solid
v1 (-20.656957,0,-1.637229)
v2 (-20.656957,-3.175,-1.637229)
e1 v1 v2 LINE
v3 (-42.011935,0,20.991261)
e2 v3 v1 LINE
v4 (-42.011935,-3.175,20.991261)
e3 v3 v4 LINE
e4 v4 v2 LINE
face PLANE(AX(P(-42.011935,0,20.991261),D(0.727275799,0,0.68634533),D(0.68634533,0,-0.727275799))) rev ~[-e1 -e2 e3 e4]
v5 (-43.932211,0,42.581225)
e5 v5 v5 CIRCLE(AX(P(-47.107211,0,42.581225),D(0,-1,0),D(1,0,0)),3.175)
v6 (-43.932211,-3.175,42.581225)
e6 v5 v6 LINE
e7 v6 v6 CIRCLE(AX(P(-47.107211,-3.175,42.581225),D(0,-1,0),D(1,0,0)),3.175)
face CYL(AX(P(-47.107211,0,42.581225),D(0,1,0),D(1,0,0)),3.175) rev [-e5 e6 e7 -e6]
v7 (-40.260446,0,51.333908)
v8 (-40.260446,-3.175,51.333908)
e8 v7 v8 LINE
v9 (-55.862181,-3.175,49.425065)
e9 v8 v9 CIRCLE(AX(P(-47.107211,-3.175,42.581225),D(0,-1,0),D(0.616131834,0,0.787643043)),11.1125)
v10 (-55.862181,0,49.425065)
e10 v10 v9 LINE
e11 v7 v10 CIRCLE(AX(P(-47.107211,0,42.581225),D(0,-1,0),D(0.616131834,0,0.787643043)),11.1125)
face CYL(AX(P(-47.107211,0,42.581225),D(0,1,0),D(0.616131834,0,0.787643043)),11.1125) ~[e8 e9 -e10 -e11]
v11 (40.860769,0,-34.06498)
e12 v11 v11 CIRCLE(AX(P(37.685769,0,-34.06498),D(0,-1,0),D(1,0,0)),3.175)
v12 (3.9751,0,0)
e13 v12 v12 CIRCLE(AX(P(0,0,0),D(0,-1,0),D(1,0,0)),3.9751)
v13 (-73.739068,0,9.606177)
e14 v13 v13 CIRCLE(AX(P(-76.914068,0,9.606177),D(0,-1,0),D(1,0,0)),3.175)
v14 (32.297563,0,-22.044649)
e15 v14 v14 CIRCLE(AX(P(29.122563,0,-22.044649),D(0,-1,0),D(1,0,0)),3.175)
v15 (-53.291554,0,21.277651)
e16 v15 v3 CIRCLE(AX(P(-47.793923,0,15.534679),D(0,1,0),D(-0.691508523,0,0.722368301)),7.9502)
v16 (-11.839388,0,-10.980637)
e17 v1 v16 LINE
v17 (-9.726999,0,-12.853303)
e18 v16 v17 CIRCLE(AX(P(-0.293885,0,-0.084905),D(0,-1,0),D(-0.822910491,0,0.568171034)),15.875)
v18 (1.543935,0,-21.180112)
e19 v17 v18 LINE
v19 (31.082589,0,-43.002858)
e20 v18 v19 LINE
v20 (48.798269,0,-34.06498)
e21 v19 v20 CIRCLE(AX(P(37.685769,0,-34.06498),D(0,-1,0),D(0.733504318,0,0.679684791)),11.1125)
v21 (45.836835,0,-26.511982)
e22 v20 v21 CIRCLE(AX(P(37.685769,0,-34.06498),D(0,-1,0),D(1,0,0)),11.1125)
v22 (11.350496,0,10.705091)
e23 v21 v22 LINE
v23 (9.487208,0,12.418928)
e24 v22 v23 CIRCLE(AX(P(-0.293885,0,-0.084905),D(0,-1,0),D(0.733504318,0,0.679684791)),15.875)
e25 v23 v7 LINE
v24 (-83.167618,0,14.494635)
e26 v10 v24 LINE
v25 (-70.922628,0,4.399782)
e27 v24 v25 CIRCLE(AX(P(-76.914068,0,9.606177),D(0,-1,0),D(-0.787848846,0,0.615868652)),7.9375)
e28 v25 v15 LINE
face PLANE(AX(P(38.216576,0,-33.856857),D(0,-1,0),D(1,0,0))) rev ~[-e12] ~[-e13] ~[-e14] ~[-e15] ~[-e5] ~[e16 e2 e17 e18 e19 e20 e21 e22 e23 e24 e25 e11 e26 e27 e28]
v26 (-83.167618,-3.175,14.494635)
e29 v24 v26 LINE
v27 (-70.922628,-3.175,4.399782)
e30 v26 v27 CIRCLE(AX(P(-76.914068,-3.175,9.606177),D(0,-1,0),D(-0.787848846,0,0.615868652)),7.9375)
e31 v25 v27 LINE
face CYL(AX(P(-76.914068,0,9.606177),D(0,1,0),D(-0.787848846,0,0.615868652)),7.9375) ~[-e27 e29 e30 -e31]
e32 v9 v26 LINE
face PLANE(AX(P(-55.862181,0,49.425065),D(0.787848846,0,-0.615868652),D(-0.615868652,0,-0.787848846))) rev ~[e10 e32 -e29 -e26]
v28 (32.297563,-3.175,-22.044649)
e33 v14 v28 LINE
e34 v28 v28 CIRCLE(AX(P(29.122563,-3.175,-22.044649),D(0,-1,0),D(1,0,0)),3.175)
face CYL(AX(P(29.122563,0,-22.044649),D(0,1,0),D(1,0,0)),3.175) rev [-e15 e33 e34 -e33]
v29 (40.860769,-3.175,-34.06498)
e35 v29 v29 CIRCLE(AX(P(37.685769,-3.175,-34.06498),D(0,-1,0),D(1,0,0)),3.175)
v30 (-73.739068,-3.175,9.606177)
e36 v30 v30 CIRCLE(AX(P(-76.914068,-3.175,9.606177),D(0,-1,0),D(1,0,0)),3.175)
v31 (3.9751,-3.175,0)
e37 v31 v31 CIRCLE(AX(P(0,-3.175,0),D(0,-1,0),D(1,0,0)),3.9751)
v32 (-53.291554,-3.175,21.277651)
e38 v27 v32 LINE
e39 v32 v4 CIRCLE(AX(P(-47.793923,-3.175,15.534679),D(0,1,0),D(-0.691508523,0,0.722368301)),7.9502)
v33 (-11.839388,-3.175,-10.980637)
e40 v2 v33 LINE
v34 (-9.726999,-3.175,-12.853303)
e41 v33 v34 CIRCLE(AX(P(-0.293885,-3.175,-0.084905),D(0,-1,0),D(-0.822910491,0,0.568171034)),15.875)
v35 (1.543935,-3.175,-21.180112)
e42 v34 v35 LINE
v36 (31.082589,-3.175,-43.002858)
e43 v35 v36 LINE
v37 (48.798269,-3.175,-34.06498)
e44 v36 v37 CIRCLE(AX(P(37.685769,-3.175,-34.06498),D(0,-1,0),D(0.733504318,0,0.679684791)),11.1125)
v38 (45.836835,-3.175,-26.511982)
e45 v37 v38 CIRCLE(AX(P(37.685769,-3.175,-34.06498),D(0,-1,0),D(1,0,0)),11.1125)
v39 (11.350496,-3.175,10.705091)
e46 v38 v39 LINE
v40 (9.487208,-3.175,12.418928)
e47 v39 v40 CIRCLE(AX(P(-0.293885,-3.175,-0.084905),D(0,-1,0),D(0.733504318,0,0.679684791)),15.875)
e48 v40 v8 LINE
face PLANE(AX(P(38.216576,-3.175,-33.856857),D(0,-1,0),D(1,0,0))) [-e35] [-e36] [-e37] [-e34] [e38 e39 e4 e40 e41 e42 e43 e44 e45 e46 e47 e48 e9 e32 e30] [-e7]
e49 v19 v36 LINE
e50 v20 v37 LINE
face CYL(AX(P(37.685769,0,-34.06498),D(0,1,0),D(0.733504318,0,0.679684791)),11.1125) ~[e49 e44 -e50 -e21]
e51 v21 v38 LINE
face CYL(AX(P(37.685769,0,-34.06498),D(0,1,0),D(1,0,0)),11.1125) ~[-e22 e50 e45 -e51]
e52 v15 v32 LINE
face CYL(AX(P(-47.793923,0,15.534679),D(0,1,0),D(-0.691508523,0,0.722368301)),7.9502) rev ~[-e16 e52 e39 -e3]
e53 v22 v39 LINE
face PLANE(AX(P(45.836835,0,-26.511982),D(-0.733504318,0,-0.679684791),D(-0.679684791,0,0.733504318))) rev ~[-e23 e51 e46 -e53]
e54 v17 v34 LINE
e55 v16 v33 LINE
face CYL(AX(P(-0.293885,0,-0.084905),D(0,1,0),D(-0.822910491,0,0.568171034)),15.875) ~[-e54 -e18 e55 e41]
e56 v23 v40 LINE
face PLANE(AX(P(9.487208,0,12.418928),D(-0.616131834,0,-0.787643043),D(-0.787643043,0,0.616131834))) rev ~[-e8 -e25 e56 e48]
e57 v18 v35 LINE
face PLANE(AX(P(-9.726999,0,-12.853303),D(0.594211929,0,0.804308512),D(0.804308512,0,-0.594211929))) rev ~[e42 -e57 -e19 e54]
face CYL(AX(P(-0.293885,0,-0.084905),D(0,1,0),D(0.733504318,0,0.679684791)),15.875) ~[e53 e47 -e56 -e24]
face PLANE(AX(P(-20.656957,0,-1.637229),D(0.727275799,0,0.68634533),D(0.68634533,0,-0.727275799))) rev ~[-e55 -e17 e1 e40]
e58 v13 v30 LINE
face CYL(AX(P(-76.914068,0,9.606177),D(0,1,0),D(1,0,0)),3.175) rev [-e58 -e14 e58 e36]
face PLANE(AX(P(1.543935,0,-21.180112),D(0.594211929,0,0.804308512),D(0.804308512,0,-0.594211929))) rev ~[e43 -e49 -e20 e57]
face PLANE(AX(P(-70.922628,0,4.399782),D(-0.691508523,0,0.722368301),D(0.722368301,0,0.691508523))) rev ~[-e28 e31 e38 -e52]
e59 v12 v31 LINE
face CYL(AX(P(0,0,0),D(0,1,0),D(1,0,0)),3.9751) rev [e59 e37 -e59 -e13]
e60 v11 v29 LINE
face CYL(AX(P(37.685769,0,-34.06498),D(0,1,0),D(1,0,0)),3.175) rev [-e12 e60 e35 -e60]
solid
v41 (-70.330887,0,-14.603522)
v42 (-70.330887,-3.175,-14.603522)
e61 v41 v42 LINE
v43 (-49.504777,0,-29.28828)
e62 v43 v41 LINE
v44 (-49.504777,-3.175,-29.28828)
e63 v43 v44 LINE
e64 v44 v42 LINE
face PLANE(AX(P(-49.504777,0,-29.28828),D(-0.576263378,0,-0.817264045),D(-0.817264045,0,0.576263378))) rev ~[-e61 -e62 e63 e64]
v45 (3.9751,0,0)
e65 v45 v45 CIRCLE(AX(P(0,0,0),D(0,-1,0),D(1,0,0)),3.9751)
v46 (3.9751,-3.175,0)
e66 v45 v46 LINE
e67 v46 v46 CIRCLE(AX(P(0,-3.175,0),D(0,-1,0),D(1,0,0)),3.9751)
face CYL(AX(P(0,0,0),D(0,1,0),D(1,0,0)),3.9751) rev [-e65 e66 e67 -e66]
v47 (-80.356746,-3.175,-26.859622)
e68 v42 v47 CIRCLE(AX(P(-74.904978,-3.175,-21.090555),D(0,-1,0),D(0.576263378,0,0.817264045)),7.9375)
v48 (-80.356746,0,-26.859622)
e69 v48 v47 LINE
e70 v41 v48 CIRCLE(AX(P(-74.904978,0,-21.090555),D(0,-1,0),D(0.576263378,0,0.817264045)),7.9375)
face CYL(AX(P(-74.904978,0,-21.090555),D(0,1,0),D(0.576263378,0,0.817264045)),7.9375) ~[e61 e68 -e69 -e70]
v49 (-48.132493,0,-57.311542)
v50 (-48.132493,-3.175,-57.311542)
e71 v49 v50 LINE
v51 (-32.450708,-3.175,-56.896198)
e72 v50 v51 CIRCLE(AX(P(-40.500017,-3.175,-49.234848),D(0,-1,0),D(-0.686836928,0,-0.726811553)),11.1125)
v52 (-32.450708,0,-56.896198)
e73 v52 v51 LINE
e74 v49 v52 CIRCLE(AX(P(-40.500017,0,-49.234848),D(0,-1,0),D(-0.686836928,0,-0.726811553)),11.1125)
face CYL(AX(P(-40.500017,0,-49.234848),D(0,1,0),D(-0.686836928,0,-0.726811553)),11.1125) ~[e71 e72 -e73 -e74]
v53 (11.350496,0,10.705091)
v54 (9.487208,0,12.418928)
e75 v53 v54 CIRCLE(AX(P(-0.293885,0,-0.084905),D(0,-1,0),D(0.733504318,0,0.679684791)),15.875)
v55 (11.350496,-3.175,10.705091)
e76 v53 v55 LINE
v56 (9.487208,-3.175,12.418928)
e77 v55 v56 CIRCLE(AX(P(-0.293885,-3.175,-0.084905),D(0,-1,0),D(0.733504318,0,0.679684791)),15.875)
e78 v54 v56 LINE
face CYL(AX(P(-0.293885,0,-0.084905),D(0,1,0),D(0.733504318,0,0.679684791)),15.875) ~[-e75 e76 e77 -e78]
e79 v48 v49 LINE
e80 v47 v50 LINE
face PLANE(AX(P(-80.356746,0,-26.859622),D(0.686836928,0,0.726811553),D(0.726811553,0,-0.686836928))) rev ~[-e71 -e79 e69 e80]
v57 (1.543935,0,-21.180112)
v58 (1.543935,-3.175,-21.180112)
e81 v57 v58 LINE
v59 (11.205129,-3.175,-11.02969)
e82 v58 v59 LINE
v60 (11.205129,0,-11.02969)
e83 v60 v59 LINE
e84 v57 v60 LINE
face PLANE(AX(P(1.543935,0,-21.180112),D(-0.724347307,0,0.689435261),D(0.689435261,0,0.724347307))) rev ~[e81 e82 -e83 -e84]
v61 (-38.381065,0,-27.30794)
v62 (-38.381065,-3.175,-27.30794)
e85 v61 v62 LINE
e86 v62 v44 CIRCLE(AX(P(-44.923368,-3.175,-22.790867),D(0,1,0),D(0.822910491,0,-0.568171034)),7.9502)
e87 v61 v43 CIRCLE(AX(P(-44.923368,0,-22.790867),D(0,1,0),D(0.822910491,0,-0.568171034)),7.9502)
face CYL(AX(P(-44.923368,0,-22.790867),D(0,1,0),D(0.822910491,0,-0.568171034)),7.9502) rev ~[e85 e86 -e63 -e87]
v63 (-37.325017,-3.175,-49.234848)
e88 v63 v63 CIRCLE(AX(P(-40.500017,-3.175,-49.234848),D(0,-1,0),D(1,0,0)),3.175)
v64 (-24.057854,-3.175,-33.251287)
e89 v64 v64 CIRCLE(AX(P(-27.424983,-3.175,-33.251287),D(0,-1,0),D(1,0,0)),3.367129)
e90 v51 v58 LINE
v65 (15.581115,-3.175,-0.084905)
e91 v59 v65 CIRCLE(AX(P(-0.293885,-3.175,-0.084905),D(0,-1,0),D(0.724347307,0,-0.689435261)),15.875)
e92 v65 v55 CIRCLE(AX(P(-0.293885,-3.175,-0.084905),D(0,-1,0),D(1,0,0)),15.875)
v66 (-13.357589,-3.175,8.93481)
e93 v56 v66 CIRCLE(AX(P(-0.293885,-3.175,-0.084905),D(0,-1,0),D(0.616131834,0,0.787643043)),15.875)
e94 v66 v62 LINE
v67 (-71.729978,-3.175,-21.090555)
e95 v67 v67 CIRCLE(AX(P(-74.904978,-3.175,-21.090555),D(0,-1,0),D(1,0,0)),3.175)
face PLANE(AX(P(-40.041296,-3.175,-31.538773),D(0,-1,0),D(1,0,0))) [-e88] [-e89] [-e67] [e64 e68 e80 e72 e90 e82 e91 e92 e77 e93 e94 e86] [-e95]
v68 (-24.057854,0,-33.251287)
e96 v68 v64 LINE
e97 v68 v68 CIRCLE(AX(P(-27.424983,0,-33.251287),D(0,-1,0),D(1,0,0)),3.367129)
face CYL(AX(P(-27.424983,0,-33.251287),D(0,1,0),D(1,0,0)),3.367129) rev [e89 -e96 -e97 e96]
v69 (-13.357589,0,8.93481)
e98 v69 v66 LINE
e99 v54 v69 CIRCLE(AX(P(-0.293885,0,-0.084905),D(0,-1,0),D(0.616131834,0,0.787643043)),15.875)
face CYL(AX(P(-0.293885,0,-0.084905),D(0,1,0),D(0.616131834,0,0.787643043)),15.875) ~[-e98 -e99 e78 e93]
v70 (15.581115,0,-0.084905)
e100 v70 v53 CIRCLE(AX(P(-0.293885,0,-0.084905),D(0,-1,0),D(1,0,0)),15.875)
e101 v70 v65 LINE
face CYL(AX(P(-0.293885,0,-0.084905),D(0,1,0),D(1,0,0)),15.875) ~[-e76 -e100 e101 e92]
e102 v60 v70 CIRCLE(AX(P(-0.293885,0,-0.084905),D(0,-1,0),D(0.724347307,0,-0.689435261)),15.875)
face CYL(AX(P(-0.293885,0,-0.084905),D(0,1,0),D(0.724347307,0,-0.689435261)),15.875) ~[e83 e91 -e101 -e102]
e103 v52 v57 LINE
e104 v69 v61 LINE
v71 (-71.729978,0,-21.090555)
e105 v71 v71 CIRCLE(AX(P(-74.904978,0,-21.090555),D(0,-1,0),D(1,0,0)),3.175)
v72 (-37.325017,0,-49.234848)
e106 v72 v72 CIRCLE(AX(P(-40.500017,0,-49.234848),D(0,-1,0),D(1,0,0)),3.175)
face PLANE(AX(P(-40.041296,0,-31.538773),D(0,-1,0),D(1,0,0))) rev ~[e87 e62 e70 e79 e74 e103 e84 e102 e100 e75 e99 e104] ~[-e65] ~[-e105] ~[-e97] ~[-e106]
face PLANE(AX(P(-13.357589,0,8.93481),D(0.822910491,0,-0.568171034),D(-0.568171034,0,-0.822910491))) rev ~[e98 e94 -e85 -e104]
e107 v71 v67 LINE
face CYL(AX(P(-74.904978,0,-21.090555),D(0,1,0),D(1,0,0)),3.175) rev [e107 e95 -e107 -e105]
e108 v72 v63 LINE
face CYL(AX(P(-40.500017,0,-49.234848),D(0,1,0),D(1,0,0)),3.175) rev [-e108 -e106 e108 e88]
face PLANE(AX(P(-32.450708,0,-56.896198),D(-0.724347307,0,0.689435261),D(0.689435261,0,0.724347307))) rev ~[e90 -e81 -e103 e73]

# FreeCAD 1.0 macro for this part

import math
import FreeCAD as App
import Part
import Sketcher
Q = App.Units.Quantity

doc = App.newDocument("Part")
body = doc.addObject("PartDesign::Body", "Body")

sketch1 = body.newObject("Sketcher::SketchObject", "Sketch")
sketch1.AttachmentSupport = (doc.getObject("XZ_Plane"), [""])
sketch1.MapMode = "FlatFace"
sketch1.addGeometry([
    Part.ArcOfCircle(Part.Circle(App.Vector(37.7, -34.1, 0), App.Vector(0, 0, 1), 11.1), math.radians(0), math.radians(43)),
    Part.LineSegment(App.Vector(45.8, -26.5, 0), App.Vector(11.4, 10.7, 0)),
    Part.ArcOfCircle(Part.Circle(App.Vector(-0.3, -0.1, 0), App.Vector(0, 0, 1), 15.9), math.radians(42.82), math.radians(51.97)),
    Part.LineSegment(App.Vector(9.5, 12.4, 0), App.Vector(-40.3, 51.3, 0)),
    Part.ArcOfCircle(Part.Circle(App.Vector(-47.1, 42.6, 0), App.Vector(0, 0, 1), 11.1), math.radians(52), math.radians(142)),
    Part.LineSegment(App.Vector(-55.9, 49.4, 0), App.Vector(-83.2, 14.5, 0)),
    Part.ArcOfCircle(Part.Circle(App.Vector(-76.9, 9.6, 0), App.Vector(0, 0, 1), 7.9), math.radians(142), math.radians(319)),
    Part.LineSegment(App.Vector(-70.9, 4.4, 0), App.Vector(-53.3, 21.3, 0)),
    Part.ArcOfCircle(Part.Circle(App.Vector(-47.8, 15.5, 0), App.Vector(0, 0, 1), 8), math.radians(43), math.radians(134)),
    Part.LineSegment(App.Vector(-42, 21, 0), App.Vector(-20.7, -1.6, 0)),
    Part.LineSegment(App.Vector(-20.7, -1.6, 0), App.Vector(-11.8, -11, 0)),
    Part.ArcOfCircle(Part.Circle(App.Vector(-0.3, -0.1, 0), App.Vector(0, 0, 1), 15.9), math.radians(-136.66), math.radians(-126.46)),
    Part.LineSegment(App.Vector(-9.7, -12.9, 0), App.Vector(1.5, -21.2, 0)),
    Part.LineSegment(App.Vector(1.5, -21.2, 0), App.Vector(31.1, -43, 0)),
    Part.ArcOfCircle(Part.Circle(App.Vector(37.7, -34.1, 0), App.Vector(0, 0, 1), 11.1), math.radians(-126), math.radians(0)),
    Part.Circle(App.Vector(37.7, -34.1, 0), App.Vector(0, 0, 1), 3.2),
    Part.Circle(App.Vector(29.1, -22, 0), App.Vector(0, 0, 1), 3.2),
    Part.Circle(App.Vector(0, 0, 0), App.Vector(0, 0, 1), 4),
    Part.Circle(App.Vector(-76.9, 9.6, 0), App.Vector(0, 0, 1), 3.2),
    Part.Circle(App.Vector(-47.1, 42.6, 0), App.Vector(0, 0, 1), 3.2),
], False)
sketch1.addConstraint([
    Sketcher.Constraint("Tangent", 0, 2, 1, 1),
    Sketcher.Constraint("Tangent", 1, 2, 2, 1),
    Sketcher.Constraint("Tangent", 2, 2, 3, 1),
    Sketcher.Constraint("Tangent", 3, 2, 4, 1),
    Sketcher.Constraint("Tangent", 4, 2, 5, 1),
    Sketcher.Constraint("Tangent", 5, 2, 6, 1),
    Sketcher.Constraint("Coincident", 6, 2, 7, 1),
    Sketcher.Constraint("Tangent", 7, 2, 8, 2),
    Sketcher.Constraint("Tangent", 8, 1, 9, 1),
    Sketcher.Constraint("Coincident", 9, 2, 10, 1),
    Sketcher.Constraint("Tangent", 10, 2, 11, 1),
    Sketcher.Constraint("Tangent", 11, 2, 12, 1),
    Sketcher.Constraint("Coincident", 12, 2, 13, 1),
    Sketcher.Constraint("Tangent", 13, 2, 14, 1),
    Sketcher.Constraint("Tangent", 14, 2, 0, 1),
    Sketcher.Constraint("Coincident", 17, 3, -1, 1),
    Sketcher.Constraint("Coincident", 11, 3, 2, 3),
    Sketcher.Constraint("Coincident", 15, 3, 0, 3),
    Sketcher.Constraint("Coincident", 18, 3, 6, 3),
    Sketcher.Constraint("Coincident", 19, 3, 4, 3),
    Sketcher.Constraint("Equal", 0, 4),
    Sketcher.Constraint("Equal", 2, 11),
    Sketcher.Constraint("Equal", 4, 14),
    Sketcher.Constraint("Equal", 15, 16),
    Sketcher.Constraint("Equal", 16, 18),
    Sketcher.Constraint("Equal", 18, 19),
    Sketcher.Constraint("Parallel", 9, 10),
    Sketcher.Constraint("Parallel", 12, 13),
    Sketcher.Constraint("Horizontal", 15, 3, 14, 2),
    Sketcher.Constraint("Diameter", 15, Q("0.25 in")),
    Sketcher.Constraint("Diameter", 17, Q("0.313 in")),
    Sketcher.Constraint("Radius", 0, Q("0.4375 in")),
    Sketcher.Constraint("Radius", 2, Q("0.625 in")),
    Sketcher.Constraint("Radius", 6, Q("0.3125 in")),
    Sketcher.Constraint("Radius", 8, Q("0.313 in")),
    Sketcher.Constraint("DistanceX", -1, 1, 0, 2, Q("1.8045998 in")),
    Sketcher.Constraint("Distance", 12, Q("14.013198 mm")),
    Sketcher.Constraint("DistanceX", 11, 2, -1, 1, Q("9.726999 mm")),
    Sketcher.Constraint("DistanceY", 6, 3, 8, 3, Q("5.928501 mm")),
    Sketcher.Constraint("Distance", 3, Q("63.160151 mm")),
    Sketcher.Constraint("Distance", 7, Q("24.407319 mm")),
    Sketcher.Constraint("Distance", 10, Q("12.847132 mm")),
    Sketcher.Constraint("DistanceX", -1, 1, 0, 3, Q("37.685769 mm")),
    Sketcher.Constraint("DistanceY", 0, 3, -1, 1, Q("34.06498 mm")),
    Sketcher.Constraint("DistanceX", 4, 3, -1, 1, Q("47.107211 mm")),
    Sketcher.Constraint("DistanceX", 6, 3, -1, 1, Q("76.914068 mm")),
    Sketcher.Constraint("DistanceY", -1, 1, 8, 3, Q("15.534679 mm")),
    Sketcher.Constraint("DistanceY", 16, 3, -1, 1, Q("22.044649 mm")),
    Sketcher.Constraint("DistanceY", -1, 1, 7, 2, Q("21.277651 mm")),
    Sketcher.Constraint("DistanceX", 11, 3, 16, 3, Q("29.416448 mm")),
])
pad1 = body.newObject("PartDesign::Pad", "Pad")
pad1.Profile = sketch1
pad1.Length = Q("0.125 in")
body2 = doc.addObject("PartDesign::Body", "Body001")

sketch2 = body2.newObject("Sketcher::SketchObject", "Sketch001")
sketch2.AttachmentSupport = (doc.getObject("XZ_Plane001"), [""])
sketch2.MapMode = "FlatFace"
sketch2.addGeometry([
    Part.LineSegment(App.Vector(-32.5, -56.9, 0), App.Vector(1.5, -21.2, 0)),
    Part.LineSegment(App.Vector(1.5, -21.2, 0), App.Vector(11.2, -11, 0)),
    Part.ArcOfCircle(Part.Circle(App.Vector(-0.3, -0.1, 0), App.Vector(0, 0, 1), 15.9), math.radians(-44), math.radians(0)),
    Part.ArcOfCircle(Part.Circle(App.Vector(-0.3, -0.1, 0), App.Vector(0, 0, 1), 15.9), math.radians(0), math.radians(43)),
    Part.ArcOfCircle(Part.Circle(App.Vector(-0.3, -0.1, 0), App.Vector(0, 0, 1), 15.9), math.radians(42.82), math.radians(51.97)),
    Part.ArcOfCircle(Part.Circle(App.Vector(-0.3, -0.1, 0), App.Vector(0, 0, 1), 15.9), math.radians(52), math.radians(145)),
    Part.LineSegment(App.Vector(-13.4, 8.9, 0), App.Vector(-38.4, -27.3, 0)),
    Part.ArcOfCircle(Part.Circle(App.Vector(-44.9, -22.8, 0), App.Vector(0, 0, 1), 8), math.radians(-125), math.radians(-35)),
    Part.LineSegment(App.Vector(-49.5, -29.3, 0), App.Vector(-70.3, -14.6, 0)),
    Part.ArcOfCircle(Part.Circle(App.Vector(-74.9, -21.1, 0), App.Vector(0, 0, 1), 7.9), math.radians(55), math.radians(227)),
    Part.LineSegment(App.Vector(-80.4, -26.9, 0), App.Vector(-48.1, -57.3, 0)),
    Part.ArcOfCircle(Part.Circle(App.Vector(-40.5, -49.2, 0), App.Vector(0, 0, 1), 11.1), math.radians(-133), math.radians(-44)),
    Part.Circle(App.Vector(-40.5, -49.2, 0), App.Vector(0, 0, 1), 3.2),
    Part.Circle(App.Vector(-27.4, -33.3, 0), App.Vector(0, 0, 1), 3.4),
    Part.Circle(App.Vector(-74.9, -21.1, 0), App.Vector(0, 0, 1), 3.2),
    Part.Circle(App.Vector(0, 0, 0), App.Vector(0, 0, 1), 4),
], False)
sketch2.addConstraint([
    Sketcher.Constraint("Coincident", 0, 2, 1, 1),
    Sketcher.Constraint("Tangent", 1, 2, 2, 1),
    Sketcher.Constraint("Tangent", 2, 2, 3, 1),
    Sketcher.Constraint("Tangent", 3, 2, 4, 1),
    Sketcher.Constraint("Tangent", 4, 2, 5, 1),
    Sketcher.Constraint("Tangent", 5, 2, 6, 1),
    Sketcher.Constraint("Tangent", 6, 2, 7, 2),
    Sketcher.Constraint("Tangent", 7, 1, 8, 1),
    Sketcher.Constraint("Tangent", 8, 2, 9, 1),
    Sketcher.Constraint("Tangent", 9, 2, 10, 1),
    Sketcher.Constraint("Tangent", 10, 2, 11, 1),
    Sketcher.Constraint("Tangent", 11, 2, 0, 1),
    Sketcher.Constraint("Coincident", 15, 3, -1, 1),
    Sketcher.Constraint("Coincident", 4, 3, 2, 3),
    Sketcher.Constraint("Coincident", 12, 3, 11, 3),
    Sketcher.Constraint("Coincident", 14, 3, 9, 3),
    Sketcher.Constraint("Equal", 4, 5),
    Sketcher.Constraint("Equal", 12, 14),
    Sketcher.Constraint("Parallel", 0, 1),
    Sketcher.Constraint("Horizontal", 5, 3, 2, 2),
    Sketcher.Constraint("Diameter", 12, Q("0.25 in")),
    Sketcher.Constraint("Diameter", 15, Q("0.313 in")),
    Sketcher.Constraint("Radius", 2, Q("0.625 in")),
    Sketcher.Constraint("Radius", 7, Q("0.313 in")),
    Sketcher.Constraint("Radius", 9, Q("0.3125 in")),
    Sketcher.Constraint("Radius", 11, Q("0.4375 in")),
    Sketcher.Constraint("Diameter", 13, Q("6.734258 mm")),
    Sketcher.Constraint("Distance", 1, Q("14.013198 mm")),
    Sketcher.Constraint("DistanceX", 13, 3, 4, 3, Q("27.131098 mm")),
    Sketcher.Constraint("DistanceY", 9, 2, 8, 2, Q("12.2561 mm")),
    Sketcher.Constraint("DistanceY", 10, 2, 6, 2, Q("30.003601 mm")),
    Sketcher.Constraint("Distance", 8, Q("25.482719 mm")),
    Sketcher.Constraint("DistanceX", 7, 3, -1, 1, Q("44.923368 mm")),
    Sketcher.Constraint("DistanceY", 11, 3, -1, 1, Q("49.234848 mm")),
    Sketcher.Constraint("DistanceX", -1, 1, 1, 2, Q("11.205129 mm")),
    Sketcher.Constraint("DistanceY", 1, 2, -1, 1, Q("11.02969 mm")),
    Sketcher.Constraint("DistanceY", -1, 1, 3, 2, Q("10.705091 mm")),
    Sketcher.Constraint("DistanceY", -1, 1, 4, 2, Q("12.418928 mm")),
    Sketcher.Constraint("DistanceX", 5, 2, -1, 1, Q("13.357589 mm")),
    Sketcher.Constraint("DistanceY", 13, 3, 7, 3, Q("10.46042 mm")),
])
pad2 = body2.newObject("PartDesign::Pad", "Pad001")
pad2.Profile = sketch2
pad2.Length = Q("0.125 in")

doc.recompute()
